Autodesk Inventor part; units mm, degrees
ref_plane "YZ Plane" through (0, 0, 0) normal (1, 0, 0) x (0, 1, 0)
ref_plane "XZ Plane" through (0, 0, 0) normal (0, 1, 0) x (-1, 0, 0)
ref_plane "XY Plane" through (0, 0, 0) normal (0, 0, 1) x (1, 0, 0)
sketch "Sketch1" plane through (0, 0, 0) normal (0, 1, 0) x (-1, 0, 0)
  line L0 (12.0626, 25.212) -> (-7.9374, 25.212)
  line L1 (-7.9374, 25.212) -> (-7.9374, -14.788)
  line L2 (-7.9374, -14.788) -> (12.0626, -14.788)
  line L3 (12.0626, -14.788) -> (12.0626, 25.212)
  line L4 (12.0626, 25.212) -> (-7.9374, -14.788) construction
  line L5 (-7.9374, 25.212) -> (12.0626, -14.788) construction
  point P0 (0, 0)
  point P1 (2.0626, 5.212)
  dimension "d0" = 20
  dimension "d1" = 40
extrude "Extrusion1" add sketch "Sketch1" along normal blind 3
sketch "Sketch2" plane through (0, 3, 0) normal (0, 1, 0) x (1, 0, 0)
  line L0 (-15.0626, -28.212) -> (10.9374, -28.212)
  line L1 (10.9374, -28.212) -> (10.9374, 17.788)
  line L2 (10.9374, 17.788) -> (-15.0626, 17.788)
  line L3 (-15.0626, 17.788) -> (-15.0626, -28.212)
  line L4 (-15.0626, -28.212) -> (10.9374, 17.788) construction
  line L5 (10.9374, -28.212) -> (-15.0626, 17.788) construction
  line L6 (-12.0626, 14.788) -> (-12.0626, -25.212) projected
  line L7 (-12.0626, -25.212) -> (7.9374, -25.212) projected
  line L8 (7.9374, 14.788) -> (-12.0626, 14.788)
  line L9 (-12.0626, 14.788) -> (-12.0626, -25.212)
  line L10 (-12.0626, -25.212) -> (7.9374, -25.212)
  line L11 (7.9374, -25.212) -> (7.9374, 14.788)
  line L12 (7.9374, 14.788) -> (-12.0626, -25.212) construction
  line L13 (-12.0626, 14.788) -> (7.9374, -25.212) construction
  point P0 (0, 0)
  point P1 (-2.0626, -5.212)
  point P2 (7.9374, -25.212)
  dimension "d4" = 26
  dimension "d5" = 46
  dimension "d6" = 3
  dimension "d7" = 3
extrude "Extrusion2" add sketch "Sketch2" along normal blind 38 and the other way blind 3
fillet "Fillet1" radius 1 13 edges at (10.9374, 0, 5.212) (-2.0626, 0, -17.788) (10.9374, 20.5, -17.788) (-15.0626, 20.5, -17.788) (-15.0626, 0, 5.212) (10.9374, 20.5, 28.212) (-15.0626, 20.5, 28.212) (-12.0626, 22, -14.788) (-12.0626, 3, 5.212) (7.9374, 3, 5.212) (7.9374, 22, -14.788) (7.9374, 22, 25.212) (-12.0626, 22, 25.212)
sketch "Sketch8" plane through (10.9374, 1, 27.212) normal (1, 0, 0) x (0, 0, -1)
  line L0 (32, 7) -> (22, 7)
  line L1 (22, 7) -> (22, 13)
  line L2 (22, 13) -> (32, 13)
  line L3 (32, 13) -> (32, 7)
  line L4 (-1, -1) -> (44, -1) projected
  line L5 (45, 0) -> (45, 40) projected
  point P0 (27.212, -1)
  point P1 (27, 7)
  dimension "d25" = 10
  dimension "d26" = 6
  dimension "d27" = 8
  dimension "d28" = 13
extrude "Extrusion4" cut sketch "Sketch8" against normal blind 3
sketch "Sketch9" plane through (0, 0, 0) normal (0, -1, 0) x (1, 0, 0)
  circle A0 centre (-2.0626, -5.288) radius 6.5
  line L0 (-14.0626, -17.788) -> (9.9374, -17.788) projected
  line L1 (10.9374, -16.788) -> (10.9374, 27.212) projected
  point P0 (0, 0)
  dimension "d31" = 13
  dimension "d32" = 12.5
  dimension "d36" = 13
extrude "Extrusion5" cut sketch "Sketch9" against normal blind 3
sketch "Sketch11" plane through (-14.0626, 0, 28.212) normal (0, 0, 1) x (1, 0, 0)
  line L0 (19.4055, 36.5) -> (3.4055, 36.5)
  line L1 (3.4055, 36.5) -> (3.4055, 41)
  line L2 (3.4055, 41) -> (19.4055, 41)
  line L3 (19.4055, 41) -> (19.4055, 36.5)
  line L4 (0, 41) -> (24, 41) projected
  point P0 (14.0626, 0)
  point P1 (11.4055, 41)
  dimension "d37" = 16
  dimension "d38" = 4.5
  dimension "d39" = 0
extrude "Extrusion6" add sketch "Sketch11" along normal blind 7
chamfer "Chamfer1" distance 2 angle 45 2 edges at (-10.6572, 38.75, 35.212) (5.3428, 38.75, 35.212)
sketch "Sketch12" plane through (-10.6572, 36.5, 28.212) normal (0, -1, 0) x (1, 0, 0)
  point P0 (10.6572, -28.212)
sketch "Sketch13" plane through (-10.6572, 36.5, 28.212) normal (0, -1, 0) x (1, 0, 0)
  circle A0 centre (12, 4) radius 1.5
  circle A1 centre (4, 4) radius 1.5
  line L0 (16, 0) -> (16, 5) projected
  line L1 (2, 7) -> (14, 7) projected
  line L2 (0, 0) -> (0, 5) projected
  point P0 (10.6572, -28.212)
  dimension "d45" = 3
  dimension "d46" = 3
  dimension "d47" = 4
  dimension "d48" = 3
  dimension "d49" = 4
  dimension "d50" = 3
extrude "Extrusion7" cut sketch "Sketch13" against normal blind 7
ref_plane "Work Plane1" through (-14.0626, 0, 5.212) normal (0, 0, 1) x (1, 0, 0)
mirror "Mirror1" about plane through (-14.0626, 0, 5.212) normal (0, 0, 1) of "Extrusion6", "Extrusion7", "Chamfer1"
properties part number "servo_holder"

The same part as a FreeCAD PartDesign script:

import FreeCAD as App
import Part
import Sketcher

V = App.Vector


def edges_at(feature, points):
    """Names of the edges that pass closest to the given points."""
    edges = feature.Shape.Edges
    near = lambda p: min(range(len(edges)), key=lambda i: edges[i].distToShape(Part.Vertex(*p))[0])
    return sorted({f"Edge{near(p) + 1}" for p in points})


def add_polygon(sketch, points):
    """Adds a closed chain of lines whose ends are joined by coincident constraints."""
    first, n = sketch.GeometryCount, len(points)
    for a, b in zip(points, points[1:] + points[:1]):
        sketch.addGeometry(Part.LineSegment(App.Vector(*a, 0), App.Vector(*b, 0)), False)
    for i in range(n):
        sketch.addConstraint(Sketcher.Constraint("Coincident", first + i, 2, first + (i + 1) % n, 1))

doc = App.newDocument("Part")
body = doc.addObject("PartDesign::Body", "Body")

sketch1 = body.newObject("Sketcher::SketchObject", "Sketch")
sketch1.AttachmentSupport = (doc.getObject("XZ_Plane"), [""])
sketch1.MapMode = "FlatFace"
add_polygon(sketch1, [(-12.0626, -14.788), (-12.0626, 25.212), (7.9374, 25.212), (7.9374, -14.788)])
sketch1.addConstraint([
    Sketcher.Constraint("Vertical", 0),
    Sketcher.Constraint("Horizontal", 1),
    Sketcher.Constraint("Vertical", 2),
    Sketcher.Constraint("Horizontal", 3),
    Sketcher.Constraint("DistanceX", 1, 1, 1, 2, 20.0),
    Sketcher.Constraint("DistanceY", 0, 1, 0, 2, 40.0),
    Sketcher.Constraint("DistanceY", -1, 1, 0, 2, 25.212),
    Sketcher.Constraint("DistanceX", 0, 2, -1, 1, 12.0626),
])
pad1 = body.newObject("PartDesign::Pad", "Pad")
pad1.Profile = sketch1
pad1.Length = 3
pad1.Reversed = True

sketch2 = body.newObject("Sketcher::SketchObject", "Sketch001")
sketch2.AttachmentSupport = (doc.getObject("XZ_Plane"), [""])
sketch2.MapMode = "FlatFace"
sketch2.AttachmentOffset = App.Placement(V(0, 0, -3), App.Rotation())
add_polygon(sketch2, [(-15.0626, -17.788), (-15.0626, 28.212), (10.9374, 28.212), (10.9374, -17.788)])
add_polygon(sketch2, [(-12.0626, 25.212), (-12.0626, -14.788), (7.9374, -14.788), (7.9374, 25.212)])
sketch2.addConstraint([
    Sketcher.Constraint("Vertical", 0),
    Sketcher.Constraint("Horizontal", 1),
    Sketcher.Constraint("Vertical", 2),
    Sketcher.Constraint("Horizontal", 3),
    Sketcher.Constraint("Vertical", 4),
    Sketcher.Constraint("Horizontal", 5),
    Sketcher.Constraint("Vertical", 6),
    Sketcher.Constraint("Horizontal", 7),
    Sketcher.Constraint("DistanceX", 1, 1, 1, 2, 26.0),
    Sketcher.Constraint("DistanceY", 0, 1, 0, 2, 46.0),
    Sketcher.Constraint("DistanceX", 3, 2, 4, 2, 3.0),
    Sketcher.Constraint("DistanceY", 3, 2, 4, 2, 3.0),
    Sketcher.Constraint("DistanceX", 5, 2, 2, 2, 3.0),
    Sketcher.Constraint("DistanceY", 6, 2, 1, 2, 3.0),
    Sketcher.Constraint("DistanceY", -1, 1, 0, 2, 28.212),
    Sketcher.Constraint("DistanceX", 0, 2, -1, 1, 15.0626),
])
pad2 = body.newObject("PartDesign::Pad", "Pad001")
pad2.Profile = sketch2
pad2.Type = "TwoLengths"
pad2.Length = 38
pad2.Length2 = 3
pad2.Reversed = True
doc.recompute()

fillet = body.newObject("PartDesign::Fillet", "Fillet")
fillet.Base = (pad2, edges_at(pad2, [
    (10.937, 0, 5.212),
    (-2.063, 0, -17.788),
    (10.937, 20.5, -17.788),
    (-15.063, 20.5, -17.788),
    (-15.063, 0, 5.212),
    (10.937, 20.5, 28.212),
    (-15.063, 20.5, 28.212),
    (-12.063, 22, -14.788),
    (-12.063, 3, 5.212),
    (7.937, 3, 5.212),
    (7.937, 22, -14.788),
    (7.937, 22, 25.212),
    (-12.063, 22, 25.212),
]))
fillet.Radius = 1

sketch3 = body.newObject("Sketcher::SketchObject", "Sketch002")
sketch3.AttachmentSupport = (doc.getObject("YZ_Plane"), [""])
sketch3.MapMode = "FlatFace"
sketch3.AttachmentOffset = App.Placement(V(0, 0, 10.9374), App.Rotation())
add_polygon(sketch3, [(8, 5.212), (8, -4.788), (14, -4.788), (14, 5.212)])
sketch3.addConstraint([
    Sketcher.Constraint("Vertical", 0),
    Sketcher.Constraint("Horizontal", 1),
    Sketcher.Constraint("Vertical", 2),
    Sketcher.Constraint("Horizontal", 3),
    Sketcher.Constraint("DistanceX", 1, 1, 1, 2, 6.0),
    Sketcher.Constraint("DistanceY", 0, 2, 0, 1, 10.0),
    Sketcher.Constraint("DistanceX", -1, 1, 0, 2, 8.0),
    Sketcher.Constraint("DistanceY", 0, 2, -1, 1, 4.788),
])
pocket1 = body.newObject("PartDesign::Pocket", "Pocket")
pocket1.Profile = sketch3
pocket1.Length = 3

sketch4 = body.newObject("Sketcher::SketchObject", "Sketch003")
sketch4.AttachmentSupport = (doc.getObject("XZ_Plane"), [""])
sketch4.MapMode = "FlatFace"
sketch4.addGeometry(Part.Circle(V(-2.0626, -5.288, 0), V(0, 0, 1), 6.5), False)
sketch4.addConstraint([
    Sketcher.Constraint("Diameter", 0, 13.0),
    Sketcher.Constraint("DistanceY", 0, 3, -1, 1, 5.288),
    Sketcher.Constraint("DistanceX", 0, 3, -1, 1, 2.0626),
])
pocket2 = body.newObject("PartDesign::Pocket", "Pocket001")
pocket2.Profile = sketch4
pocket2.Length = 3

sketch5 = body.newObject("Sketcher::SketchObject", "Sketch004")
sketch5.AttachmentSupport = (doc.getObject("XY_Plane"), [""])
sketch5.MapMode = "FlatFace"
sketch5.AttachmentOffset = App.Placement(V(0, 0, 28.212), App.Rotation())
add_polygon(sketch5, [(-10.6571, 36.5), (5.3429, 36.5), (5.3429, 41), (-10.6571, 41)])
sketch5.addConstraint([
    Sketcher.Constraint("Horizontal", 0),
    Sketcher.Constraint("Vertical", 1),
    Sketcher.Constraint("Horizontal", 2),
    Sketcher.Constraint("Vertical", 3),
    Sketcher.Constraint("DistanceX", 0, 1, 0, 2, 16.0),
    Sketcher.Constraint("DistanceY", 1, 1, 1, 2, 4.5),
    Sketcher.Constraint("DistanceY", -1, 1, 1, 2, 41.0),
    Sketcher.Constraint("DistanceX", -1, 1, 0, 2, 5.343),
])
pad3 = body.newObject("PartDesign::Pad", "Pad002")
pad3.Profile = sketch5
pad3.Length = 7
doc.recompute()

chamfer = body.newObject("PartDesign::Chamfer", "Chamfer")
chamfer.Base = (pad3, edges_at(pad3, [(-10.657, 38.75, 35.212), (5.343, 38.75, 35.212)]))
chamfer.Size = 2

sketch6 = body.newObject("Sketcher::SketchObject", "Sketch005")
sketch6.AttachmentSupport = (doc.getObject("XZ_Plane"), [""])
sketch6.MapMode = "FlatFace"
sketch6.AttachmentOffset = App.Placement(V(0, 0, -36.5), App.Rotation())
sketch6.addGeometry([
    Part.Circle(V(1.3428, 32.212, 0), V(0, 0, 1), 1.5),
    Part.Circle(V(-6.6572, 32.212, 0), V(0, 0, 1), 1.5),
], False)
sketch6.addConstraint([
    Sketcher.Constraint("Equal", 0, 1),
    Sketcher.Constraint("Horizontal", 0, 3, 1, 3),
    Sketcher.Constraint("Diameter", 0, 3.0),
    Sketcher.Constraint("DistanceX", 1, 3, 0, 3, 8.0),
    Sketcher.Constraint("DistanceY", -1, 1, 0, 3, 32.212),
    Sketcher.Constraint("DistanceX", -1, 1, 0, 3, 1.3428),
])
pocket3 = body.newObject("PartDesign::Pocket", "Pocket002")
pocket3.Profile = sketch6
pocket3.Length = 7
doc.recompute()

datumplane = body.newObject("PartDesign::Plane", "DatumPlane")
datumplane.AttachmentSupport = (doc.getObject("XY_Plane"), [""])
datumplane.MapMode = "FlatFace"
datumplane.AttachmentOffset = App.Placement(V(0, 0, 5.212), App.Rotation())
mirrored = body.newObject("PartDesign::Mirrored", "Mirrored")
mirrored.Originals = [pad3, pocket3, chamfer]
mirrored.MirrorPlane = (datumplane, [""])
body.Tip = mirrored

doc.recompute()
